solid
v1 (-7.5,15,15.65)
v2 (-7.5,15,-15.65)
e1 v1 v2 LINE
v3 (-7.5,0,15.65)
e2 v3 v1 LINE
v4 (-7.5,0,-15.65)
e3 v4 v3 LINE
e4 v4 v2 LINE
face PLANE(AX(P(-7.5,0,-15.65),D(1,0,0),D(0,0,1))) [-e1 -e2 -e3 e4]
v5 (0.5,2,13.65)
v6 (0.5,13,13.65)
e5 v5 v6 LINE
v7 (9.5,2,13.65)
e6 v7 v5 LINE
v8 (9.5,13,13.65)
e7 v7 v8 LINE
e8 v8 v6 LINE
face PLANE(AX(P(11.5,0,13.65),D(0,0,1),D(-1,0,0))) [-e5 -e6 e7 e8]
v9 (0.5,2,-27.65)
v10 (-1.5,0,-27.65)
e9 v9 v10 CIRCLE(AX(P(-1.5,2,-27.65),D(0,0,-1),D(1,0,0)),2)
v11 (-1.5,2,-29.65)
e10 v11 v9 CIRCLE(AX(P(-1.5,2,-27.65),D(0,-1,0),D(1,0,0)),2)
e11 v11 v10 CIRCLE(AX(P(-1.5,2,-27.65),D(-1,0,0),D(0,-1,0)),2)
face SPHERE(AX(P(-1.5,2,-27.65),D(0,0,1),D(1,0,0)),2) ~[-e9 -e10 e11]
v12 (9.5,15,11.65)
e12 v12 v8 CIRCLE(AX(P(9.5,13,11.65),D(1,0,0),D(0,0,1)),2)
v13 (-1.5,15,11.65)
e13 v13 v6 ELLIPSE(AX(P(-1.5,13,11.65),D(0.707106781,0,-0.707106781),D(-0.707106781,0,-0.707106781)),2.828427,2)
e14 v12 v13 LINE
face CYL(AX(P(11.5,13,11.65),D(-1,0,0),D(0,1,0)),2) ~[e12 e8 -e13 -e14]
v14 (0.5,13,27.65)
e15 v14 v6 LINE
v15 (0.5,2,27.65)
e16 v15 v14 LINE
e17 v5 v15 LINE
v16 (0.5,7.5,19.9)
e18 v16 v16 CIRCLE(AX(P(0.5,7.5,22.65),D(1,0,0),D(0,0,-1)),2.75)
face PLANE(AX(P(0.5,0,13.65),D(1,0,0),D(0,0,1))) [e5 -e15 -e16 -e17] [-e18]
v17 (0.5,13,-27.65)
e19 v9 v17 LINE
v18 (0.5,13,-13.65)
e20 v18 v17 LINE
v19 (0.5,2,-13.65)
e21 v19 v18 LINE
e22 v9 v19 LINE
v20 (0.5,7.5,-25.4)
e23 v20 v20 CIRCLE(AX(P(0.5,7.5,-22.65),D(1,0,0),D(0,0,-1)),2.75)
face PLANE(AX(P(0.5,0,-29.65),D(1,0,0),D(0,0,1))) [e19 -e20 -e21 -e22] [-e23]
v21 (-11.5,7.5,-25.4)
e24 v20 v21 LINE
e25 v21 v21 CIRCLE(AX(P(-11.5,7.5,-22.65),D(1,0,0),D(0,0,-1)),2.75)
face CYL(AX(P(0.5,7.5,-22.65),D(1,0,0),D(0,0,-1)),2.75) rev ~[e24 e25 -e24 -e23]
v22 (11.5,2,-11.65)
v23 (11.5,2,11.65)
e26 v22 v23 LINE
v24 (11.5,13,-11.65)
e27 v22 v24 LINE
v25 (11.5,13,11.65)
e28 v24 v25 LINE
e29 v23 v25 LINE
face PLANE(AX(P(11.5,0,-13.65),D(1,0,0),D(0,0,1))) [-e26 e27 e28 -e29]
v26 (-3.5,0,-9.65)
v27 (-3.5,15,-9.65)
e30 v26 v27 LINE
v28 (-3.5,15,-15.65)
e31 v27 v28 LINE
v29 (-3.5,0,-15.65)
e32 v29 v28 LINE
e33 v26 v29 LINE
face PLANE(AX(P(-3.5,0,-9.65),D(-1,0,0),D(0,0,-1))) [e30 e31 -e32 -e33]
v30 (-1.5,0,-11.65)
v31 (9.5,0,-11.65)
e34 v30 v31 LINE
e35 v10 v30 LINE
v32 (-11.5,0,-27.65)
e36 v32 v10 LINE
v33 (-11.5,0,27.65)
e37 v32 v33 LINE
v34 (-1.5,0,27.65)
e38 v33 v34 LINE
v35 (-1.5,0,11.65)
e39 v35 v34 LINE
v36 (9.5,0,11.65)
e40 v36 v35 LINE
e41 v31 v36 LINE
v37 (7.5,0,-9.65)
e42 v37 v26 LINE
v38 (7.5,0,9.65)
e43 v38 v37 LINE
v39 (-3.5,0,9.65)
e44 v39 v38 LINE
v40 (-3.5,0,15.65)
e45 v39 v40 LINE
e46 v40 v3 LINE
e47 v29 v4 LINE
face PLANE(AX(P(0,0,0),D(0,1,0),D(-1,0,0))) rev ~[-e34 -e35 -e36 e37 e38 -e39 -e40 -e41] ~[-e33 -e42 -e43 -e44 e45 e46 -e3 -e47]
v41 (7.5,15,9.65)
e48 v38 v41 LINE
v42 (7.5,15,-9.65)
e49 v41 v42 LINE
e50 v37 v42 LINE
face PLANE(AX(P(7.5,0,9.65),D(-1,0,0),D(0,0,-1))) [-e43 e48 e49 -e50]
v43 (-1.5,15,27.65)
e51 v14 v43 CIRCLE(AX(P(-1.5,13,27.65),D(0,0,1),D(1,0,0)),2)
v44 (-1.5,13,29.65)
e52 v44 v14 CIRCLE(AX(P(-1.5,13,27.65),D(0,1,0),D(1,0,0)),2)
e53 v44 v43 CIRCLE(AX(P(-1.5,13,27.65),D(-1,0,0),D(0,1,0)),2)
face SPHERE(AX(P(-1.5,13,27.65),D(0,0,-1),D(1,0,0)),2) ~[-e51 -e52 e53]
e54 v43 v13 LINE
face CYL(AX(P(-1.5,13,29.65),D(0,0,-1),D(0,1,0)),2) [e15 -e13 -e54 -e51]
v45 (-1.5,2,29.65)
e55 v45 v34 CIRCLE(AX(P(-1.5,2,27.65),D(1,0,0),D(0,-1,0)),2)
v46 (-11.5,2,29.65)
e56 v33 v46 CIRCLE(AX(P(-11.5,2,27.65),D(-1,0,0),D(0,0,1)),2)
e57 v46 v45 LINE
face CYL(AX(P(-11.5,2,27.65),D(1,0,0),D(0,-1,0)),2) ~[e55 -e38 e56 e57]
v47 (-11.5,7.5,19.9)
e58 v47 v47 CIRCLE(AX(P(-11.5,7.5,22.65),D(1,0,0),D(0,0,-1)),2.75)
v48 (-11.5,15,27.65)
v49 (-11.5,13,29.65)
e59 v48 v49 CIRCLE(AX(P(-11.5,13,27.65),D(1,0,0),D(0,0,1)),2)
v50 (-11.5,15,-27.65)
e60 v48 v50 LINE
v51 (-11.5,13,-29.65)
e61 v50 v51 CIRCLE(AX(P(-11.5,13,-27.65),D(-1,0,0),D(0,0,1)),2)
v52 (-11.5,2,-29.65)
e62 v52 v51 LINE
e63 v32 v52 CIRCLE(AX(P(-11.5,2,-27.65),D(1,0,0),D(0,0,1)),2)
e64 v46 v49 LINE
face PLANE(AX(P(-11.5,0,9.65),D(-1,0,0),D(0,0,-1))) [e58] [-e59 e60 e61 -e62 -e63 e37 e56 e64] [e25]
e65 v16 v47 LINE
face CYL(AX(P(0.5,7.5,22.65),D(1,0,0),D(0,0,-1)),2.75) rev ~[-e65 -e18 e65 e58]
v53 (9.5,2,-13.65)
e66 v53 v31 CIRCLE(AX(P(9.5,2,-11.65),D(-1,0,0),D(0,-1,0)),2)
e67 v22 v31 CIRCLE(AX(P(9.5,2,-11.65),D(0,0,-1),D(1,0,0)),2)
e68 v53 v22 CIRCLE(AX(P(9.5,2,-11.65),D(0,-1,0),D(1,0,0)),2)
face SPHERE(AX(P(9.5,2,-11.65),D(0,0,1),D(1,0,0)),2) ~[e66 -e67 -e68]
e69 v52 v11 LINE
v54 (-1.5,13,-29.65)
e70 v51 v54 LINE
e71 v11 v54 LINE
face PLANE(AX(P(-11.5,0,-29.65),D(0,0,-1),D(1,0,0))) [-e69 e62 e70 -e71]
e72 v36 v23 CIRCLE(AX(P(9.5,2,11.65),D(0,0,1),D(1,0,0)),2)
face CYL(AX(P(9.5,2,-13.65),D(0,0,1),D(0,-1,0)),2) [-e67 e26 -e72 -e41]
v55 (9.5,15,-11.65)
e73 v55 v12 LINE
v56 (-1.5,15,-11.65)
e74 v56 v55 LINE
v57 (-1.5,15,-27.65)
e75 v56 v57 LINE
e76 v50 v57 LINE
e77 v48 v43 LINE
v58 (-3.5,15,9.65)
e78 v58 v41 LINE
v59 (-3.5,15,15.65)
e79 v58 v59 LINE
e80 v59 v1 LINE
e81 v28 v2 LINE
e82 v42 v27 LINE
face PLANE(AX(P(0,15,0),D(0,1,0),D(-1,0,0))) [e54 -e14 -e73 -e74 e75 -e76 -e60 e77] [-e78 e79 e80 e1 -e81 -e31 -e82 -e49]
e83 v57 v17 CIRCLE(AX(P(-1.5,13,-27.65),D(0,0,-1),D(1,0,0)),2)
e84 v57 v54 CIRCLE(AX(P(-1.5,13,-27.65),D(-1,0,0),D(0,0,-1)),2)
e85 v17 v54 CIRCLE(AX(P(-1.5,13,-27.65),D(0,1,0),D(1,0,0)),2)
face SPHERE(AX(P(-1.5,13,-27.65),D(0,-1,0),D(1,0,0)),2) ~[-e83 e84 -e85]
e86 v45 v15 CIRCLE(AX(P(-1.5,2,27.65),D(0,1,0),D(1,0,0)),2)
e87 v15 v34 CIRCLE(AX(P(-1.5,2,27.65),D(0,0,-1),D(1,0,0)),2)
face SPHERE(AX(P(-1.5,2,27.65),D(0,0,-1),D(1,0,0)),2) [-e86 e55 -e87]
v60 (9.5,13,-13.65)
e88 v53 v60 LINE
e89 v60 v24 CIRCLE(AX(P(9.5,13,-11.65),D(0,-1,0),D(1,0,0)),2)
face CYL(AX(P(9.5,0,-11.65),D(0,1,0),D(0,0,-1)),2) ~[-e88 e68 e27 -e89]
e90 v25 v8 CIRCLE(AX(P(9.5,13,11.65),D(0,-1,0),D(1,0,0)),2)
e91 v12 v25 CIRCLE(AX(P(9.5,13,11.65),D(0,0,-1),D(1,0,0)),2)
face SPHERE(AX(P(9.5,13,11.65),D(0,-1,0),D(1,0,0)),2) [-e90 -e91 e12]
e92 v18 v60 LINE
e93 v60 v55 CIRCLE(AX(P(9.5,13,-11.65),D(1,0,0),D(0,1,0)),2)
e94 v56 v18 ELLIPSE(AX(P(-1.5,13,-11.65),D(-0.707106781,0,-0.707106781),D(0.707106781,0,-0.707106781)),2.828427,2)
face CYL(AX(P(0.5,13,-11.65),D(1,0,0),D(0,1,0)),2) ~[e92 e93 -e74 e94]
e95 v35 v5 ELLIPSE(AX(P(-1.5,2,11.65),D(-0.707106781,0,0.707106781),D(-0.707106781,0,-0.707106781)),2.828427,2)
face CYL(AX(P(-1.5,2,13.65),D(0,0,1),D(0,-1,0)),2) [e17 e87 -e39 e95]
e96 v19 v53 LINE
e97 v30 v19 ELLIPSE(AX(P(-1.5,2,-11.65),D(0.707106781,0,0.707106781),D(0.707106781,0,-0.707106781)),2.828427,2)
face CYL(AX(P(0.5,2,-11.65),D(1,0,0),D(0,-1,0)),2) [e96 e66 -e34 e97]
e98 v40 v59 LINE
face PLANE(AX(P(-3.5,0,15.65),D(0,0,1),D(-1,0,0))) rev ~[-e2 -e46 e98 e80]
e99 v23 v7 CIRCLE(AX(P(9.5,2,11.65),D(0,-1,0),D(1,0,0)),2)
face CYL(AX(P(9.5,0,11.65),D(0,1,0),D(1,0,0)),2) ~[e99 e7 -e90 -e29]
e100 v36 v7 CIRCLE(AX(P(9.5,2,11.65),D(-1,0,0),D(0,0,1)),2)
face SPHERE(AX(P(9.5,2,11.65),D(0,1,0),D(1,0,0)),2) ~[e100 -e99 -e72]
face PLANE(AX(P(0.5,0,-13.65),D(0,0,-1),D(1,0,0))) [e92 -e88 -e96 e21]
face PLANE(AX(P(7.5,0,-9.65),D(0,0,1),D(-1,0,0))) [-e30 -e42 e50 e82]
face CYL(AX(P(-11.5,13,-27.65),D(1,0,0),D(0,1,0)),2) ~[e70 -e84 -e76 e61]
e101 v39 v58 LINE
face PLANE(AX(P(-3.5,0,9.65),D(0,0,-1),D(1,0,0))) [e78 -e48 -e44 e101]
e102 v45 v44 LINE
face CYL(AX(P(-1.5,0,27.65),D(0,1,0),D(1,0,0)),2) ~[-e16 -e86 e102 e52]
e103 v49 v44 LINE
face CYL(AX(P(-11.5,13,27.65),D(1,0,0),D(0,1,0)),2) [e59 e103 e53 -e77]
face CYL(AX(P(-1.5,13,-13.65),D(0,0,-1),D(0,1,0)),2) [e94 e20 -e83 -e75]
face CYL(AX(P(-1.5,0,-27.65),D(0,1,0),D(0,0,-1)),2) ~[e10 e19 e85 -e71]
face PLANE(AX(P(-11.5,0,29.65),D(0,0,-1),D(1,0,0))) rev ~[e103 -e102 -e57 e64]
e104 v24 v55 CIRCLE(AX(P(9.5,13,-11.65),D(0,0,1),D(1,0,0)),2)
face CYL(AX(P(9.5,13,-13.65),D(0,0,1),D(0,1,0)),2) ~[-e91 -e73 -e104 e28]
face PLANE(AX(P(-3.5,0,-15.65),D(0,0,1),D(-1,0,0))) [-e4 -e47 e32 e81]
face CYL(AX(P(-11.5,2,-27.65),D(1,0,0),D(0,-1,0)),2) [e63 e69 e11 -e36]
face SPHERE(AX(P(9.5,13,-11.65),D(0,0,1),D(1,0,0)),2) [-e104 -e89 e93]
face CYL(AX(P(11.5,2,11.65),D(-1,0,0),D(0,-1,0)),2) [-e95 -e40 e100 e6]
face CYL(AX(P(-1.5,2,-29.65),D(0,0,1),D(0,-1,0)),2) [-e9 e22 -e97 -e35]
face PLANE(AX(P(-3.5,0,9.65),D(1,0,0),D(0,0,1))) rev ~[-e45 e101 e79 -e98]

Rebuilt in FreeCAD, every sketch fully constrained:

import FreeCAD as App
import Part
import Sketcher

V = App.Vector


def edges_at(feature, points):
    """Names of the edges that pass closest to the given points."""
    edges = feature.Shape.Edges
    near = lambda p: min(range(len(edges)), key=lambda i: edges[i].distToShape(Part.Vertex(*p))[0])
    return sorted({f"Edge{near(p) + 1}" for p in points})

doc = App.newDocument("Part")
body = doc.addObject("PartDesign::Body", "Body")

# Sketch on XZ plane
sketch1 = doc.addObject("Sketcher::SketchObject", "Sketch")
body.addObject(sketch1)
sketch1.AttachmentSupport = (doc.XZ_Plane, [""])
sketch1.MapMode = "FlatFace"
sketch1.addGeometry(Part.LineSegment(V(-11.5, -29.6, 0), V(-11.5, 29.6, 0)), False)
sketch1.addGeometry(Part.LineSegment(V(-11.5, 29.6, 0), V(0.5, 29.6, 0)), False)
sketch1.addGeometry(Part.LineSegment(V(0.5, 29.6, 0), V(0.5, 13.7, 0)), False)
sketch1.addGeometry(Part.LineSegment(V(0.5, 13.7, 0), V(11.5, 13.7, 0)), False)
sketch1.addGeometry(Part.LineSegment(V(11.5, 13.7, 0), V(11.5, -13.7, 0)), False)
sketch1.addGeometry(Part.LineSegment(V(11.5, -13.7, 0), V(0.5, -13.7, 0)), False)
sketch1.addGeometry(Part.LineSegment(V(0.5, -13.7, 0), V(0.5, -29.6, 0)), False)
sketch1.addGeometry(Part.LineSegment(V(0.5, -29.6, 0), V(-11.5, -29.6, 0)), False)
sketch1.addGeometry(Part.LineSegment(V(7.5, 9.7, 0), V(-3.5, 9.7, 0)), False)
sketch1.addGeometry(Part.LineSegment(V(-3.5, 9.7, 0), V(-3.5, 15.7, 0)), False)
sketch1.addGeometry(Part.LineSegment(V(-3.5, 15.7, 0), V(-7.5, 15.7, 0)), False)
sketch1.addGeometry(Part.LineSegment(V(-7.5, 15.7, 0), V(-7.5, -15.7, 0)), False)
sketch1.addGeometry(Part.LineSegment(V(-7.5, -15.7, 0), V(-3.5, -15.7, 0)), False)
sketch1.addGeometry(Part.LineSegment(V(-3.5, -15.7, 0), V(-3.5, -9.7, 0)), False)
sketch1.addGeometry(Part.LineSegment(V(-3.5, -9.7, 0), V(7.5, -9.7, 0)), False)
sketch1.addGeometry(Part.LineSegment(V(7.5, -9.7, 0), V(7.5, 9.7, 0)), False)
sketch1.addConstraint(Sketcher.Constraint("Coincident", 0, 2, 1, 1))
sketch1.addConstraint(Sketcher.Constraint("Coincident", 1, 2, 2, 1))
sketch1.addConstraint(Sketcher.Constraint("Coincident", 2, 2, 3, 1))
sketch1.addConstraint(Sketcher.Constraint("Coincident", 3, 2, 4, 1))
sketch1.addConstraint(Sketcher.Constraint("Coincident", 4, 2, 5, 1))
sketch1.addConstraint(Sketcher.Constraint("Coincident", 5, 2, 6, 1))
sketch1.addConstraint(Sketcher.Constraint("Coincident", 6, 2, 7, 1))
sketch1.addConstraint(Sketcher.Constraint("Coincident", 7, 2, 0, 1))
sketch1.addConstraint(Sketcher.Constraint("Coincident", 8, 2, 9, 1))
sketch1.addConstraint(Sketcher.Constraint("Coincident", 9, 2, 10, 1))
sketch1.addConstraint(Sketcher.Constraint("Coincident", 10, 2, 11, 1))
sketch1.addConstraint(Sketcher.Constraint("Coincident", 11, 2, 12, 1))
sketch1.addConstraint(Sketcher.Constraint("Coincident", 12, 2, 13, 1))
sketch1.addConstraint(Sketcher.Constraint("Coincident", 13, 2, 14, 1))
sketch1.addConstraint(Sketcher.Constraint("Coincident", 14, 2, 15, 1))
sketch1.addConstraint(Sketcher.Constraint("Coincident", 15, 2, 8, 1))
sketch1.addConstraint(Sketcher.Constraint("Vertical", 0))
sketch1.addConstraint(Sketcher.Constraint("Horizontal", 1))
sketch1.addConstraint(Sketcher.Constraint("Vertical", 2))
sketch1.addConstraint(Sketcher.Constraint("Horizontal", 3))
sketch1.addConstraint(Sketcher.Constraint("Vertical", 4))
sketch1.addConstraint(Sketcher.Constraint("Horizontal", 5))
sketch1.addConstraint(Sketcher.Constraint("Vertical", 6))
sketch1.addConstraint(Sketcher.Constraint("Horizontal", 7))
sketch1.addConstraint(Sketcher.Constraint("Horizontal", 8))
sketch1.addConstraint(Sketcher.Constraint("Vertical", 9))
sketch1.addConstraint(Sketcher.Constraint("Horizontal", 10))
sketch1.addConstraint(Sketcher.Constraint("Vertical", 11))
sketch1.addConstraint(Sketcher.Constraint("Horizontal", 12))
sketch1.addConstraint(Sketcher.Constraint("Vertical", 13))
sketch1.addConstraint(Sketcher.Constraint("Horizontal", 14))
sketch1.addConstraint(Sketcher.Constraint("Vertical", 15))
sketch1.addConstraint(Sketcher.Constraint("Symmetric", 2, 2, 5, 2, -1))
sketch1.addConstraint(Sketcher.Constraint("Symmetric", 9, 2, 12, 2, -1))
sketch1.addConstraint(Sketcher.Constraint("Equal", 5, 8))
sketch1.addConstraint(Sketcher.Constraint("Equal", 2, 6))
sketch1.addConstraint(Sketcher.Constraint("Equal", 9, 13))
sketch1.addConstraint(Sketcher.Constraint("DistanceX", 10, 2, 10, 1, 4.0))
sketch1.addConstraint(Sketcher.Constraint("DistanceY", 9, 1, 9, 2, 6.0))
sketch1.addConstraint(Sketcher.Constraint("DistanceY", 15, 1, 15, 2, 19.3))
sketch1.addConstraint(Sketcher.Constraint("DistanceX", 8, 2, 2, 2, 4.0))
sketch1.addConstraint(Sketcher.Constraint("DistanceY", 8, 2, 2, 2, 4.0))
sketch1.addConstraint(Sketcher.Constraint("DistanceX", 8, 2, 3, 2, 15.0))
sketch1.addConstraint(Sketcher.Constraint("DistanceX", 0, 2, 10, 2, 4.0))
sketch1.addConstraint(Sketcher.Constraint("DistanceY", 2, 2, 2, 1, 16.0))
sketch1.addConstraint(Sketcher.Constraint("DistanceX", 0, 2, -1, 1, 11.5))
pad1 = doc.addObject("PartDesign::Pad", "Pad")
body.addObject(pad1)
pad1.Profile = sketch1
pad1.Length = 15
pad1.Reversed = True

# Sketch on YZ plane
sketch2 = doc.addObject("Sketcher::SketchObject", "Sketch001")
body.addObject(sketch2)
sketch2.AttachmentSupport = (doc.YZ_Plane, [""])
sketch2.MapMode = "FlatFace"
sketch2.AttachmentOffset = App.Placement(V(0, 0, 0.5), App.Rotation())
sketch2.addGeometry(Part.Circle(V(7.5, 22.6, 0), V(0, 0, 1), 2.8), False)
sketch2.addGeometry(Part.Circle(V(7.5, -22.6, 0), V(0, 0, 1), 2.8), False)
sketch2.addConstraint(Sketcher.Constraint("Equal", 0, 1))
sketch2.addConstraint(Sketcher.Constraint("Symmetric", 0, 3, 1, 3, -1))
sketch2.addConstraint(Sketcher.Constraint("Diameter", 0, 5.5))
sketch2.addConstraint(Sketcher.Constraint("DistanceX", -1, 1, 0, 3, 7.5))
sketch2.addConstraint(Sketcher.Constraint("DistanceY", 1, 3, 0, 3, 45.3))
pocket1 = doc.addObject("PartDesign::Pocket", "Pocket")
body.addObject(pocket1)
pocket1.Profile = sketch2
pocket1.Length = 15
doc.recompute()

fillet = doc.addObject("PartDesign::Fillet", "Fillet")
body.addObject(fillet)
fillet.Base = (pocket1, edges_at(pocket1, [
    (11.5, 7.5, 13.65),
    (11.5, 15, 0),
    (6, 15, 13.65),
    (11.5, 0, 0),
    (11.5, 7.5, -13.65),
    (6, 0, -13.65),
    (6, 0, 13.65),
    (0.5, 15, 21.65),
    (0.5, 0, 21.65),
    (0.5, 7.5, 29.65),
    (0.5, 0, -21.65),
    (0.5, 7.5, -29.65),
    (0.5, 15, -21.65),
    (-5.5, 0, -29.65),
    (-5.5, 15, 29.65),
    (-5.5, 0, 29.65),
    (-5.5, 15, -29.65),
    (6, 15, -13.65),
]))
fillet.Radius = 2

doc.recompute()
